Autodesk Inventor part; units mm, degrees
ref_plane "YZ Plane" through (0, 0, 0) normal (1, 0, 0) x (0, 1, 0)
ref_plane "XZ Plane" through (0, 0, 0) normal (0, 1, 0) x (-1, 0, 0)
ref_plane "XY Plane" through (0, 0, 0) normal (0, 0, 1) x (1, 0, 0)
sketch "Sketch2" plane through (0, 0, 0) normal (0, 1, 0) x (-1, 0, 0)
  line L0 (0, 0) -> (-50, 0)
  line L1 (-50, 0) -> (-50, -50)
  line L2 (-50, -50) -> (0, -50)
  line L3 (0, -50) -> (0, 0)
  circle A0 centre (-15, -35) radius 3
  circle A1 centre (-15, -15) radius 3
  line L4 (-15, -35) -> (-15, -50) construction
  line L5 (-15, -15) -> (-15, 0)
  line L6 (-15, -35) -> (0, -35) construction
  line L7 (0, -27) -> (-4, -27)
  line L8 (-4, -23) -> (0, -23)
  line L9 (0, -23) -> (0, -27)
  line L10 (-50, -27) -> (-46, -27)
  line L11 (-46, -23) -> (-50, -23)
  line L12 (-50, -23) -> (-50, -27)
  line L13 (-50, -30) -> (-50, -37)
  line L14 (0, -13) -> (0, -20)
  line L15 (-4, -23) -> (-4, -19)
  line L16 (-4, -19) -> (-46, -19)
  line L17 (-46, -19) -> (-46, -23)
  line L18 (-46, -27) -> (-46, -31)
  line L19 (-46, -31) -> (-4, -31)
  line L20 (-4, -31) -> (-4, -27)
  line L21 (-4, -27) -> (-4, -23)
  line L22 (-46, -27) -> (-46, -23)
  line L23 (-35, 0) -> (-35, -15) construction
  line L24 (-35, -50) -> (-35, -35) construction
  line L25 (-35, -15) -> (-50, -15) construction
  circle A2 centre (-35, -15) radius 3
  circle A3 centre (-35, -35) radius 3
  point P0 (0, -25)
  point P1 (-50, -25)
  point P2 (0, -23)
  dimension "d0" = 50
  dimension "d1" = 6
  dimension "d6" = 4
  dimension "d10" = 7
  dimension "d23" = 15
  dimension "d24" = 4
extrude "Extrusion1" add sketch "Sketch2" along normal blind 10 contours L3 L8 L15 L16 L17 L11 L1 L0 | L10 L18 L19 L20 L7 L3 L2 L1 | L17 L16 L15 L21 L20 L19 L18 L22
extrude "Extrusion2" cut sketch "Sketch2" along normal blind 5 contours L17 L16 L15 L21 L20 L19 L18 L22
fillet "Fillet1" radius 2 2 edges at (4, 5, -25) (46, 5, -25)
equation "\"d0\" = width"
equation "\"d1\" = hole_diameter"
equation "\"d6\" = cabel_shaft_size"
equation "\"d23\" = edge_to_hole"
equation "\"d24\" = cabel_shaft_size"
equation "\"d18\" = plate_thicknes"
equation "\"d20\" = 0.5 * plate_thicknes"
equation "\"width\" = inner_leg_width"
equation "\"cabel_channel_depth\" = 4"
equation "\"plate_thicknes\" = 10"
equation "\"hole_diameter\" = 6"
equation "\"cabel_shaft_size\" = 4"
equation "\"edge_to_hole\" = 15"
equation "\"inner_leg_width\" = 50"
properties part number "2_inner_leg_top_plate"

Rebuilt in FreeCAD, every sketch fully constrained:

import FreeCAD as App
import Part
import Sketcher
Q = App.Units.Quantity


def edges_at(feature, points):
    """Names of the edges that pass closest to the given points."""
    edges = feature.Shape.Edges
    near = lambda p: min(range(len(edges)), key=lambda i: edges[i].distToShape(Part.Vertex(*p))[0])
    return sorted({f"Edge{near(p) + 1}" for p in points})


def add_polygon(sketch, points):
    """Adds a closed chain of lines whose ends are joined by coincident constraints."""
    first, n = sketch.GeometryCount, len(points)
    for a, b in zip(points, points[1:] + points[:1]):
        sketch.addGeometry(Part.LineSegment(App.Vector(*a, 0), App.Vector(*b, 0)), False)
    for i in range(n):
        sketch.addConstraint(Sketcher.Constraint("Coincident", first + i, 2, first + (i + 1) % n, 1))

doc = App.newDocument("Part")
body = doc.addObject("PartDesign::Body", "Body")

# Sketch on XZ plane
sketch1 = doc.addObject("Sketcher::SketchObject", "Sketch")
body.addObject(sketch1)
sketch1.AttachmentSupport = (doc.XZ_Plane, [""])
sketch1.MapMode = "FlatFace"
add_polygon(sketch1, [(0, 0), (15, 0), (50, 0), (50, -23), (46, -23), (46, -27), (50, -27), (50, -50), (0, -50), (0, -27), (4, -27), (4, -23), (0, -23)])  # lines 0-12
sketch1.addGeometry(Part.Circle(App.Vector(35, -15, 0), App.Vector(0, 0, 1), 3), False)  # 13
sketch1.addGeometry(Part.Circle(App.Vector(15, -15, 0), App.Vector(0, 0, 1), 3), False)  # 14
sketch1.addGeometry(Part.Circle(App.Vector(35, -35, 0), App.Vector(0, 0, 1), 3), False)  # 15
sketch1.addGeometry(Part.Circle(App.Vector(15, -35, 0), App.Vector(0, 0, 1), 3), False)  # 16
sketch1.addConstraint([
    Sketcher.Constraint("Horizontal", 0),
    Sketcher.Constraint("Horizontal", 1),
    Sketcher.Constraint("Vertical", 2),
    Sketcher.Constraint("Horizontal", 3),
    Sketcher.Constraint("Vertical", 4),
    Sketcher.Constraint("Horizontal", 5),
    Sketcher.Constraint("Vertical", 6),
    Sketcher.Constraint("Horizontal", 7),
    Sketcher.Constraint("Vertical", 8),
    Sketcher.Constraint("Horizontal", 9),
    Sketcher.Constraint("Vertical", 10),
    Sketcher.Constraint("Horizontal", 11),
    Sketcher.Constraint("Vertical", 12),
    Sketcher.Constraint("Coincident", 12, 2, -1, 1),
    Sketcher.Constraint("Equal", 13, 14),
    Sketcher.Constraint("Equal", 14, 15),
    Sketcher.Constraint("Equal", 15, 16),
    Sketcher.Constraint("PointOnObject", 7, 2, -2),
    Sketcher.Constraint("Horizontal", 13, 3, 14, 3),
    Sketcher.Constraint("Horizontal", 15, 3, 16, 3),
    Sketcher.Constraint("Horizontal", 5, 2, 8, 2),
    Sketcher.Constraint("Horizontal", 3, 2, 10, 2),
    Sketcher.Constraint("Vertical", 13, 3, 15, 3),
    Sketcher.Constraint("Vertical", 14, 3, 16, 3),
    Sketcher.Constraint("Vertical", 16, 3, 0, 2),
    Sketcher.Constraint("Vertical", 2, 2, 5, 2),
    Sketcher.Constraint("Equal", 5, 9),
    Sketcher.Constraint("Equal", 11, 4),
    Sketcher.Constraint("Equal", 2, 6),
    Sketcher.Constraint("Diameter", 13, Q("6 mm")),
    Sketcher.Constraint("DistanceX", 0, 1, 0, 2, Q("15 mm")),
    Sketcher.Constraint("DistanceX", 3, 2, 3, 1, Q("4 mm")),
    Sketcher.Constraint("DistanceX", 7, 2, 7, 1, Q("50 mm")),
    Sketcher.Constraint("DistanceY", 13, 3, -1, 1, Q("15 mm")),
    Sketcher.Constraint("DistanceY", 6, 2, -1, 1, Q("50 mm")),
    Sketcher.Constraint("DistanceX", 13, 3, 1, 2, Q("15 mm")),
    Sketcher.Constraint("DistanceY", 6, 2, 15, 3, Q("15 mm")),
])
pad1 = doc.addObject("PartDesign::Pad", "Pad")
body.addObject(pad1)
pad1.Profile = sketch1
pad1.Length = 10
pad1.Reversed = True

# Sketch on XZ plane
sketch2 = doc.addObject("Sketcher::SketchObject", "Sketch001")
body.addObject(sketch2)
sketch2.AttachmentSupport = (doc.XZ_Plane, [""])
sketch2.MapMode = "FlatFace"
add_polygon(sketch2, [(46, -19), (46, -31), (4, -31), (4, -19)])  # lines 0-3
sketch2.addConstraint([
    Sketcher.Constraint("Vertical", 0),
    Sketcher.Constraint("Horizontal", 1),
    Sketcher.Constraint("Vertical", 2),
    Sketcher.Constraint("Horizontal", 3),
    Sketcher.Constraint("DistanceX", -1, 1, 1, 2, Q("4 mm")),
    Sketcher.Constraint("DistanceX", 1, 2, 1, 1, Q("42 mm")),
    Sketcher.Constraint("DistanceY", 0, 2, 0, 1, Q("12 mm")),
    Sketcher.Constraint("DistanceY", 0, 2, -1, 1, Q("31 mm")),
])
pocket1 = doc.addObject("PartDesign::Pocket", "Pocket")
body.addObject(pocket1)
pocket1.Profile = sketch2
pocket1.Length = 5
doc.recompute()

fillet = doc.addObject("PartDesign::Fillet", "Fillet")
body.addObject(fillet)
fillet.Base = (pocket1, edges_at(pocket1, [(4, 5, -25), (46, 5, -25)]))
fillet.Radius = 2

doc.recompute()
